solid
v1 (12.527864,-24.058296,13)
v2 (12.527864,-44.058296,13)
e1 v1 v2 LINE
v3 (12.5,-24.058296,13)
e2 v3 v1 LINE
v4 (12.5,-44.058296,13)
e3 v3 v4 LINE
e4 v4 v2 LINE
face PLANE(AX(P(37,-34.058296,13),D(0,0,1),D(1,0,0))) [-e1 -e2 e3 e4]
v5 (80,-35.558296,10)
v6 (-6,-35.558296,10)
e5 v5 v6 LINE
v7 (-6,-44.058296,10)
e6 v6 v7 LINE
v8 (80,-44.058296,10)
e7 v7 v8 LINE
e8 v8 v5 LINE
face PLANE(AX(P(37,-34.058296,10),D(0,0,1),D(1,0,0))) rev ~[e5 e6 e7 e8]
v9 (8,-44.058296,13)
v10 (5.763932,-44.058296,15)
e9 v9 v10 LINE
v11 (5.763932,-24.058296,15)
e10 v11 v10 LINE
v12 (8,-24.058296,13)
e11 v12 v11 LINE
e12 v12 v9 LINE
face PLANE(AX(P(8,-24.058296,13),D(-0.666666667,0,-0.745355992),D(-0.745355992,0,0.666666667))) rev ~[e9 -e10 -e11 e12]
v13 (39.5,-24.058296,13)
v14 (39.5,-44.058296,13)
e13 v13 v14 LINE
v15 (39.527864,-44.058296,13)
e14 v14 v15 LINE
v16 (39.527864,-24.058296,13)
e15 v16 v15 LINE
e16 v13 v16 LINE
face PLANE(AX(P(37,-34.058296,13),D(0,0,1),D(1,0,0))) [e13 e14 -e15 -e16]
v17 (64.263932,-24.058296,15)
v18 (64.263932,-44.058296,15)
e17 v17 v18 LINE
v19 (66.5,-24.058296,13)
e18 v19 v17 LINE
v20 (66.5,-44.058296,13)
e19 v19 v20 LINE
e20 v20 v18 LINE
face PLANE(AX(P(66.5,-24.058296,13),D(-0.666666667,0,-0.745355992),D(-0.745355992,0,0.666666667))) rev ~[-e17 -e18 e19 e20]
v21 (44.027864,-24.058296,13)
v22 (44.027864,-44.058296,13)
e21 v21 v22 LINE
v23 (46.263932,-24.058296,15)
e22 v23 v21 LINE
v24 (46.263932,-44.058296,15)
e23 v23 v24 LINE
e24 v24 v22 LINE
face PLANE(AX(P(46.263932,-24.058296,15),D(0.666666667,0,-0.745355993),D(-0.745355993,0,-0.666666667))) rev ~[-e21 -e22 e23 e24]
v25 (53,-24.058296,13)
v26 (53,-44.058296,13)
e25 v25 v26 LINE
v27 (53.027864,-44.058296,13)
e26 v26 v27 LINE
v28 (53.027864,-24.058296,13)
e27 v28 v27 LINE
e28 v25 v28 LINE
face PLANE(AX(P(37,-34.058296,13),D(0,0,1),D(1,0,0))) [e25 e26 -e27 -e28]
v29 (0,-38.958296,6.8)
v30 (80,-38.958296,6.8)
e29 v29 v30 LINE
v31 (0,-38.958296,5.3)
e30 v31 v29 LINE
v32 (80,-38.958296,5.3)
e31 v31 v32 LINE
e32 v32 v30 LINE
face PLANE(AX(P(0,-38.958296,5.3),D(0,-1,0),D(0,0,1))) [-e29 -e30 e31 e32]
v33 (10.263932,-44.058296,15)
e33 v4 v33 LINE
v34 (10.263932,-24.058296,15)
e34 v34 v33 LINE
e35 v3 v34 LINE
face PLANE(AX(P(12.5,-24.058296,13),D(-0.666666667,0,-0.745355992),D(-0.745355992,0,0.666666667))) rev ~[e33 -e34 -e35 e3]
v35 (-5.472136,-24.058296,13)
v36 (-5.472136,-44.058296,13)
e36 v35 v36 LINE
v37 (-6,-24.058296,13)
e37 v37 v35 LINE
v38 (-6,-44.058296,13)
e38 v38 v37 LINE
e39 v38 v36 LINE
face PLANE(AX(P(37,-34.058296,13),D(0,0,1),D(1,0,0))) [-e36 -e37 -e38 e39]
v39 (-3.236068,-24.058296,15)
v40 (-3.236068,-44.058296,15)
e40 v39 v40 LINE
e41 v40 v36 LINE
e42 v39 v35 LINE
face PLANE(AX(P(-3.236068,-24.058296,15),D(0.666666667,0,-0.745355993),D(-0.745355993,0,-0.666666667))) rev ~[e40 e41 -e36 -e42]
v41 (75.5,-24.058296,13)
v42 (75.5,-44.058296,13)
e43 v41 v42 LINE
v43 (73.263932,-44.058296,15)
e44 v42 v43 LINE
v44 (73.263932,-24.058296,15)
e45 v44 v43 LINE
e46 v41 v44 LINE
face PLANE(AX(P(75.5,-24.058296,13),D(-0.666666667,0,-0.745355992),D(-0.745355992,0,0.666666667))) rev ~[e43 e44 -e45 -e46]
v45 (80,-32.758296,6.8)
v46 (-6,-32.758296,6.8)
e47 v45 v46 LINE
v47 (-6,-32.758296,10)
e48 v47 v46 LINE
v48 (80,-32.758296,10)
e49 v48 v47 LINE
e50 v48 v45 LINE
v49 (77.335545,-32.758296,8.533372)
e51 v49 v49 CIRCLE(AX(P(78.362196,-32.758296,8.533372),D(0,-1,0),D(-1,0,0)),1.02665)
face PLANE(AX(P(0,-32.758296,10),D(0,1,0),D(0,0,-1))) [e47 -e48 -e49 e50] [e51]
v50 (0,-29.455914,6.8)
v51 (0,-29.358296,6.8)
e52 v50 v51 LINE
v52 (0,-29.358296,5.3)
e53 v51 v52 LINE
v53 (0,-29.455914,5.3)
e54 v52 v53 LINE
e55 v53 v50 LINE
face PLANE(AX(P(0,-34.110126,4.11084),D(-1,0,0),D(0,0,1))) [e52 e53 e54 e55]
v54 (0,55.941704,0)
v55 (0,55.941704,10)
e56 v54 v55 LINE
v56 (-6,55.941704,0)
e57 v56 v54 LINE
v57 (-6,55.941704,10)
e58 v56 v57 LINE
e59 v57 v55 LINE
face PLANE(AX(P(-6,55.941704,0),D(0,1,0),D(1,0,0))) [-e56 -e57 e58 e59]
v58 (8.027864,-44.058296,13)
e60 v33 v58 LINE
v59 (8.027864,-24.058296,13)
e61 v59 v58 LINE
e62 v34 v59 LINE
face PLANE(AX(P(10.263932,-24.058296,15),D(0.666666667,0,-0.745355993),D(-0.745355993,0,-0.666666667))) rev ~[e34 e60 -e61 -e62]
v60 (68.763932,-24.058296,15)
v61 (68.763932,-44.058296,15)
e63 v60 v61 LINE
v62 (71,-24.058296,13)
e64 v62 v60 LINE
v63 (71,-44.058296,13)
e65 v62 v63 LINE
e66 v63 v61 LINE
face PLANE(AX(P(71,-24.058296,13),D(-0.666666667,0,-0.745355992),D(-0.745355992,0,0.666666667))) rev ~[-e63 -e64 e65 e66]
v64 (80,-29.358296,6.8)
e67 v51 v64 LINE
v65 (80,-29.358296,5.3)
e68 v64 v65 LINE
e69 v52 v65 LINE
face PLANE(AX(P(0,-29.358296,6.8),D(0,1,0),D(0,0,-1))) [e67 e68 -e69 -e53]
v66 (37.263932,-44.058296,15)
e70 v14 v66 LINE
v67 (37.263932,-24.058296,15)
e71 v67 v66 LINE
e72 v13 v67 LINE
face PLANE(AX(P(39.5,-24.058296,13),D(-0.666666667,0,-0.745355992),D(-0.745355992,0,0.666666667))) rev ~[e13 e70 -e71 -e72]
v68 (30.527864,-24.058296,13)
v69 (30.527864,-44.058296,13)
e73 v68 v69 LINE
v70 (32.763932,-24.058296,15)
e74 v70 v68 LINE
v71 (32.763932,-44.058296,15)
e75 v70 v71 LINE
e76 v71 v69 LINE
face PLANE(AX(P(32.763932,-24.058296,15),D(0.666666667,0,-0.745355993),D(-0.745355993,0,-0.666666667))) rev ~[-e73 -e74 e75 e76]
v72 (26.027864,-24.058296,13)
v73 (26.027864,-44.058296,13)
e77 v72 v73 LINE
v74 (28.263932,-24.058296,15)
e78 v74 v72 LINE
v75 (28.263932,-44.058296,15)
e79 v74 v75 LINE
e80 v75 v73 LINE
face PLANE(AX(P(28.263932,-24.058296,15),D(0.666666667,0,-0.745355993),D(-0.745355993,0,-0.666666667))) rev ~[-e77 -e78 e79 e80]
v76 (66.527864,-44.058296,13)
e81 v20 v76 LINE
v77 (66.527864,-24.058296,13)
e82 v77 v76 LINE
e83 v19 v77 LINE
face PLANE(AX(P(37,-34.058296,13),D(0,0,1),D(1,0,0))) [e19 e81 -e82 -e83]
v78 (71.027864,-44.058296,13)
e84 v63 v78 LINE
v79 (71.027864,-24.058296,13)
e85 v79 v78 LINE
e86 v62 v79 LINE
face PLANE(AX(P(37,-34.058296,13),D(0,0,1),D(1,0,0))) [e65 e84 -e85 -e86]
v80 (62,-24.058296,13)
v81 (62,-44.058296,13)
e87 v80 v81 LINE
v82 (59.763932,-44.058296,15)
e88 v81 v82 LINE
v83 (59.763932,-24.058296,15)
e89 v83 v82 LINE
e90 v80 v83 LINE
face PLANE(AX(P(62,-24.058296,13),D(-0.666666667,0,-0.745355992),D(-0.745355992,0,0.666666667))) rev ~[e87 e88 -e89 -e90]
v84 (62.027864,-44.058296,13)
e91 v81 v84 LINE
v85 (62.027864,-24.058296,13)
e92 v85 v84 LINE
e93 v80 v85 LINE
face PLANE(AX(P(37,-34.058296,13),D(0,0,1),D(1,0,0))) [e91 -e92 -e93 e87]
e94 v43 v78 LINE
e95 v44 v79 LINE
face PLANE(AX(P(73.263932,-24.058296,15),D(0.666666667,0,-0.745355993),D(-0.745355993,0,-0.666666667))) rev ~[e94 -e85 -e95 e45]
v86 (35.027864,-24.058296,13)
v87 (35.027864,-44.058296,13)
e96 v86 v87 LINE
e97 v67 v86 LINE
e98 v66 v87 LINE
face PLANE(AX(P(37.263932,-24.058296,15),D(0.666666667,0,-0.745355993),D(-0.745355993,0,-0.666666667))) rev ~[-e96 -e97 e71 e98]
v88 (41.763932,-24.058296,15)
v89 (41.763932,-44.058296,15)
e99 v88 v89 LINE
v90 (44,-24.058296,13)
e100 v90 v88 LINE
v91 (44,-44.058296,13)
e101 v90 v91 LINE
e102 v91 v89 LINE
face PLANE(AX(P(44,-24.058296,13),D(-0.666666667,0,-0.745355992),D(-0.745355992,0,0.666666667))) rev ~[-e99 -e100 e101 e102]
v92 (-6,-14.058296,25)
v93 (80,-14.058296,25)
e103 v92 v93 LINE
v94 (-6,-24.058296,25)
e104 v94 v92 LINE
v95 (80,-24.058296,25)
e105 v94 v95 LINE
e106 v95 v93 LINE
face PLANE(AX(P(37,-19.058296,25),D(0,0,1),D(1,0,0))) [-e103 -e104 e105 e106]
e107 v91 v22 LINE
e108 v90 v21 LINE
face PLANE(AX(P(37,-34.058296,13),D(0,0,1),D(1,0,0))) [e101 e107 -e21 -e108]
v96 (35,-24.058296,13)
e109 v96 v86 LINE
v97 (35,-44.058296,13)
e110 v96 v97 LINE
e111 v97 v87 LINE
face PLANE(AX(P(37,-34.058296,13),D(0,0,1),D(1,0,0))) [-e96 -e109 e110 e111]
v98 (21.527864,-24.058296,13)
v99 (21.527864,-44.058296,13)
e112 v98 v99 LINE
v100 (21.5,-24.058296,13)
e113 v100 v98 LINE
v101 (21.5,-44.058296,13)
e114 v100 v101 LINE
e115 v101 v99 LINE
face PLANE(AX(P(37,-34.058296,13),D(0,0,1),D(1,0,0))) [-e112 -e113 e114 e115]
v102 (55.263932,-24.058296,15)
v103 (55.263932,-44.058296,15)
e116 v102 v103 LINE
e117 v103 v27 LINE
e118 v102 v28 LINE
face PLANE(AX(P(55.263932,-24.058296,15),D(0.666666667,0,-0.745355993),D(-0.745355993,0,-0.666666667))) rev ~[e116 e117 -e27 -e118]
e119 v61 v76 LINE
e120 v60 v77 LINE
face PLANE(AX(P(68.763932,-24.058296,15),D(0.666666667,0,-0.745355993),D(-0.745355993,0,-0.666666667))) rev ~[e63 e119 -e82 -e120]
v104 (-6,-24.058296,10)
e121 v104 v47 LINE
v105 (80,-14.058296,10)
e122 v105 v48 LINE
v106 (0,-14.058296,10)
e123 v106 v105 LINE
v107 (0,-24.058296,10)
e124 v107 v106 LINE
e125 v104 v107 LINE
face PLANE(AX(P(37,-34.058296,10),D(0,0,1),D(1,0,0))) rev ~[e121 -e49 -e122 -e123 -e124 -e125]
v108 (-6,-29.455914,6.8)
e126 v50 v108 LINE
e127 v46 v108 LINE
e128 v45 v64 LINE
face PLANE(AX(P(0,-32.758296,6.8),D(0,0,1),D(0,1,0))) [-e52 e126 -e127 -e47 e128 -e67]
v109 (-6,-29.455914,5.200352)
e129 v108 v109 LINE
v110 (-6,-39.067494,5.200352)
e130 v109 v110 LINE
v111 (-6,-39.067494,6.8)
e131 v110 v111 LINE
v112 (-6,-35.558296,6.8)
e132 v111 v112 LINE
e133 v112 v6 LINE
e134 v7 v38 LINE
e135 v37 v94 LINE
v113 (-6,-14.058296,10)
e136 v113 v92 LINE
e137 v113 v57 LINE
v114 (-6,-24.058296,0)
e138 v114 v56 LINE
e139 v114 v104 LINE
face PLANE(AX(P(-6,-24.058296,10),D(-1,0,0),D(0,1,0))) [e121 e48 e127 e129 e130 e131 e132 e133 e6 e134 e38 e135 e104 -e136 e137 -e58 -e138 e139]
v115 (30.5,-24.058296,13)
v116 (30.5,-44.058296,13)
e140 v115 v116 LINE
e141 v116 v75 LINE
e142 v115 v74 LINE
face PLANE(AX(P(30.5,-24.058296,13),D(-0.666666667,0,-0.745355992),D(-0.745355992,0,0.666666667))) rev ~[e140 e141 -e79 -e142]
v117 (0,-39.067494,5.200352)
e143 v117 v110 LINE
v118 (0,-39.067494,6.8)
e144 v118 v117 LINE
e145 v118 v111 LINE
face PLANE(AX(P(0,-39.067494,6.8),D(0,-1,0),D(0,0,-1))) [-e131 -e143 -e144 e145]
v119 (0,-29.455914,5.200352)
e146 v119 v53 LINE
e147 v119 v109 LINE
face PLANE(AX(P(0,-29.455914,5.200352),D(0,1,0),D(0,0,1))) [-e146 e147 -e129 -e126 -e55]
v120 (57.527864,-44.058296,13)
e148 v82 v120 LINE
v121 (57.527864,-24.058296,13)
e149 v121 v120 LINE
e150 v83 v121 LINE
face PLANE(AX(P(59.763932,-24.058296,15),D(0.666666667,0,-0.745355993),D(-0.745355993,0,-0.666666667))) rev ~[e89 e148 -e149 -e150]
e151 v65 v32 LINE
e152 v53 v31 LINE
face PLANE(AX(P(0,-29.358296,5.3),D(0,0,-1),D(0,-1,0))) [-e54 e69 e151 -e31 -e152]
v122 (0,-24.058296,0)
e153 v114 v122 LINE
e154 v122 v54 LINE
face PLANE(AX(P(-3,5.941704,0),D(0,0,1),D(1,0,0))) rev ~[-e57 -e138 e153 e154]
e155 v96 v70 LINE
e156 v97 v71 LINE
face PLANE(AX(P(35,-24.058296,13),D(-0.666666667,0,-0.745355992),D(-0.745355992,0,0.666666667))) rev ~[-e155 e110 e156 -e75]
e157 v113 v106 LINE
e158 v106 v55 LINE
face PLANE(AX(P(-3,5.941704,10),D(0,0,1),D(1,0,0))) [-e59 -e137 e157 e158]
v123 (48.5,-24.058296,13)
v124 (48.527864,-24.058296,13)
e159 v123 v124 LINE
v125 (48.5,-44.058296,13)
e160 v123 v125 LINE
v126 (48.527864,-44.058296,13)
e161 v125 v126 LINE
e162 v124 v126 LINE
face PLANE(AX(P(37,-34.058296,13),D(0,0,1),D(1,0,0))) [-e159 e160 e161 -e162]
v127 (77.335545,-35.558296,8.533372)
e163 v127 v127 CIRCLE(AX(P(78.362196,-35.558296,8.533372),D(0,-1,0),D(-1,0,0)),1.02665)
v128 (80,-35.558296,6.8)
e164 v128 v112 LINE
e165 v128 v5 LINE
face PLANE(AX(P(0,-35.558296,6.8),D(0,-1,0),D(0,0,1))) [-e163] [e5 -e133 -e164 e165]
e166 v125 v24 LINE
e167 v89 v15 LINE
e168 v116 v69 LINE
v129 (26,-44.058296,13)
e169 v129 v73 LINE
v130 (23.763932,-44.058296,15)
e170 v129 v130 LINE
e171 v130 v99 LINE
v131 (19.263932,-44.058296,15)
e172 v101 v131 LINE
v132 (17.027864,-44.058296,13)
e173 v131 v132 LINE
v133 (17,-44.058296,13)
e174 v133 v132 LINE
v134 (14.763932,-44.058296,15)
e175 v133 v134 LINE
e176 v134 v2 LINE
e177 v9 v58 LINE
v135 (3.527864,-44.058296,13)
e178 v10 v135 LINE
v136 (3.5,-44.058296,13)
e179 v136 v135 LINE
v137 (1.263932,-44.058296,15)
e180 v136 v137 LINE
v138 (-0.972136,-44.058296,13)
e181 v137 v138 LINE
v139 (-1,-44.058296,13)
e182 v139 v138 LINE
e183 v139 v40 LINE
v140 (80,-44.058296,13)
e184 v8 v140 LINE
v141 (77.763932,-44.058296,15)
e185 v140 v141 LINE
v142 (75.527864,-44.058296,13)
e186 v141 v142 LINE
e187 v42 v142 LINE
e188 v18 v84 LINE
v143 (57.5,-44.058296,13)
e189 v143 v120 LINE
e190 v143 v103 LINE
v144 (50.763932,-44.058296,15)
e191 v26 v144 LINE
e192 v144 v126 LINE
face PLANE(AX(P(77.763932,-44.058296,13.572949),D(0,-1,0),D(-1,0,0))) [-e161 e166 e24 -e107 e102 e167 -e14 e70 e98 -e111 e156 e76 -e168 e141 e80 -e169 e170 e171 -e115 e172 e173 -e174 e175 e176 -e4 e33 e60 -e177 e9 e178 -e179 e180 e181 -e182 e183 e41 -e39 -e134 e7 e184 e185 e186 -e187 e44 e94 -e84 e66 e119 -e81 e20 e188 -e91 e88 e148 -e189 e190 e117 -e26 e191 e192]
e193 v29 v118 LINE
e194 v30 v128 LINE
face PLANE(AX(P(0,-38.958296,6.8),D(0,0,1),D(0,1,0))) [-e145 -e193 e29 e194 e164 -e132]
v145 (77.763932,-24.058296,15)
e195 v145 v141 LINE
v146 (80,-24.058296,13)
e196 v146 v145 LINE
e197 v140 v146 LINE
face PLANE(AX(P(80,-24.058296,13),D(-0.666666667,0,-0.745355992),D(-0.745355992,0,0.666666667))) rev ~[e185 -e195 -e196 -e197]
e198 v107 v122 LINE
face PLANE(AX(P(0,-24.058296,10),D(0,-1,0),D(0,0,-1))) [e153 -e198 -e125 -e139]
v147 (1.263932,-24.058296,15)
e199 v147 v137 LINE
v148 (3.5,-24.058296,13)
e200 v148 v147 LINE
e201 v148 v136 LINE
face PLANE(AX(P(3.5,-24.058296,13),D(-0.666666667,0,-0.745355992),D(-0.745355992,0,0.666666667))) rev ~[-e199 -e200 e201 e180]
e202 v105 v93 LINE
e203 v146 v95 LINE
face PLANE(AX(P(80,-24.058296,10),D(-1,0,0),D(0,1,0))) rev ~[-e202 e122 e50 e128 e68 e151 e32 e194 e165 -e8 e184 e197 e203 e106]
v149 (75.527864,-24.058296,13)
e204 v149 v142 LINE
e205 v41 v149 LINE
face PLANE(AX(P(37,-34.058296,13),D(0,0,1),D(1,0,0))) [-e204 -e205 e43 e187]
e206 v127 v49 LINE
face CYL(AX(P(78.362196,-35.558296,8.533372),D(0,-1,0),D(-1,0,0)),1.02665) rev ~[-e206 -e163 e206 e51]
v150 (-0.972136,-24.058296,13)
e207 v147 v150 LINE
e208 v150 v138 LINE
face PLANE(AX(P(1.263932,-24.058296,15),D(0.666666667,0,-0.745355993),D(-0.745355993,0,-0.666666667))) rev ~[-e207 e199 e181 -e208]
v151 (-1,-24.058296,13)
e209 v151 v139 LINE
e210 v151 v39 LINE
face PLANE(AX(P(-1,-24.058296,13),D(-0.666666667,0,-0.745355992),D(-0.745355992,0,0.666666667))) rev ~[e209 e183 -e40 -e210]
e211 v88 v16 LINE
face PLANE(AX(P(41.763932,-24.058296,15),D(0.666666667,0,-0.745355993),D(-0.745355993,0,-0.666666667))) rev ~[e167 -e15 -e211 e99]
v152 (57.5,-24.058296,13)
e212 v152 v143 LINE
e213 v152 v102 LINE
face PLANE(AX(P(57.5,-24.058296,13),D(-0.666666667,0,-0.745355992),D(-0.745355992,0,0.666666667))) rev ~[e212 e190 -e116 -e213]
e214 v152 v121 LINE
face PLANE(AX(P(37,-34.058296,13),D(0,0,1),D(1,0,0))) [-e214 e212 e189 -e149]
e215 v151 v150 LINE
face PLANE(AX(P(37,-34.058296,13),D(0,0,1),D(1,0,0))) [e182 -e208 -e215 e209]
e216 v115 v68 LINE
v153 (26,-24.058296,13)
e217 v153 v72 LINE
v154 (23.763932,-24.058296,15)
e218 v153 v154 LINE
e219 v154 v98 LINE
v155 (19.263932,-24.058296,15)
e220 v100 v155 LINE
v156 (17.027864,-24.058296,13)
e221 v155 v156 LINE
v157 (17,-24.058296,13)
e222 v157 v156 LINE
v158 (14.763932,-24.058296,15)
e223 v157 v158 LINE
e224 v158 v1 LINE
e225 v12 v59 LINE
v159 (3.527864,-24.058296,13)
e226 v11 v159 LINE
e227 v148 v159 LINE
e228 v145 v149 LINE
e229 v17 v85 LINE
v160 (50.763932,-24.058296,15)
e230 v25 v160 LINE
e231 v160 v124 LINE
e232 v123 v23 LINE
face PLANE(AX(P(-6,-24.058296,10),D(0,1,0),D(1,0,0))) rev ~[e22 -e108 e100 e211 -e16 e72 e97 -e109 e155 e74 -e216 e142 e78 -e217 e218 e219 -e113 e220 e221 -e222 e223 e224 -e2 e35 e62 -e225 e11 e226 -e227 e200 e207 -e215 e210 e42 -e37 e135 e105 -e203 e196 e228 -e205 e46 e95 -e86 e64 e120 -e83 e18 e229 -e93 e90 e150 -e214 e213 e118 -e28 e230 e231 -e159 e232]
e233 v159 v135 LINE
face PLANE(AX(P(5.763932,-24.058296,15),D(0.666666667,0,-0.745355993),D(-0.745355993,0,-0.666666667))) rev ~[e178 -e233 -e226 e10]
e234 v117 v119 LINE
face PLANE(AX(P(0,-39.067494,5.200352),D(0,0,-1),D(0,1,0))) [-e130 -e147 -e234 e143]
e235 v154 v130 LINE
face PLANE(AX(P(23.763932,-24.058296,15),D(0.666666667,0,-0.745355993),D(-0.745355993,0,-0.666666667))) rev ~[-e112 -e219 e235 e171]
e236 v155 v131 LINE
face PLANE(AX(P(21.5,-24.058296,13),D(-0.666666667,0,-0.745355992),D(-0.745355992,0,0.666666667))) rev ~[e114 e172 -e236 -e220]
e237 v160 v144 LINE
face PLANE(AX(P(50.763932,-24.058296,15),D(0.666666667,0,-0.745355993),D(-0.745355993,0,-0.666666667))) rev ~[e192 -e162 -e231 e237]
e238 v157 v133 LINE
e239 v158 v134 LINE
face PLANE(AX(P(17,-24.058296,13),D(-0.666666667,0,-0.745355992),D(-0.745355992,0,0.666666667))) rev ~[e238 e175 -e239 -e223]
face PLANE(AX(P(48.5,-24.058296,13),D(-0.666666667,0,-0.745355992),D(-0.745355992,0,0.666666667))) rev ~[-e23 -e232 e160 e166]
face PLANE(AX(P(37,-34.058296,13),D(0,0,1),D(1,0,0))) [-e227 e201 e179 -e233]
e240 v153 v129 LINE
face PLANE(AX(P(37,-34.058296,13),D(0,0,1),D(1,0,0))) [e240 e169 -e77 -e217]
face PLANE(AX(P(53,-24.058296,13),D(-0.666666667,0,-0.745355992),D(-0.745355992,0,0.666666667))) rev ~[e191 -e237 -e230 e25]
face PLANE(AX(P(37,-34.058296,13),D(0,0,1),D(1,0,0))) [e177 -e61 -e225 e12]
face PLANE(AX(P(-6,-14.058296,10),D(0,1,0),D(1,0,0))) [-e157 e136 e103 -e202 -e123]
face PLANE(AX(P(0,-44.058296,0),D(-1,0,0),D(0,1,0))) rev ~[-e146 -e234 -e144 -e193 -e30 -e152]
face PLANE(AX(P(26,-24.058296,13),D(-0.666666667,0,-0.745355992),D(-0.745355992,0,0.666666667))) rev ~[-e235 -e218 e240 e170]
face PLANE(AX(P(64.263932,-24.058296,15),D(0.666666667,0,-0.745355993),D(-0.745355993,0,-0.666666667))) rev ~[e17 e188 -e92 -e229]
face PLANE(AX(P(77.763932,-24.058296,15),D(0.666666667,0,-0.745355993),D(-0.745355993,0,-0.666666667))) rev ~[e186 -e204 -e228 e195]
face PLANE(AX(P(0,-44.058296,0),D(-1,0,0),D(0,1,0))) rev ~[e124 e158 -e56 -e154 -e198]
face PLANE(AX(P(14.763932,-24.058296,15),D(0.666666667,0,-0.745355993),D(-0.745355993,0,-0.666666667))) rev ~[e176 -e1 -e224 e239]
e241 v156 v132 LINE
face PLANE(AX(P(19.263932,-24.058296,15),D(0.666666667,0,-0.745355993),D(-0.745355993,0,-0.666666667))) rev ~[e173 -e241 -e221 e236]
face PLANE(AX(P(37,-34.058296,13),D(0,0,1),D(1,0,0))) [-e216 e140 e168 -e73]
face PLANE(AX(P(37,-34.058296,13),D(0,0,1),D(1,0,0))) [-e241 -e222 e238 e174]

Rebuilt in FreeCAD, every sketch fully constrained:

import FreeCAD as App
import Part
import Sketcher
from FreeCAD import Vector

doc = App.newDocument("Part")
body = doc.addObject("PartDesign::Body", "Body")
body.AllowCompound = True

sketch1 = body.newObject("Sketcher::SketchObject", "Sketch")
sketch1.AttachmentSupport = (doc.getObject("XY_Plane"), [""])
sketch1.MapMode = "FlatFace"
sketch1.addGeometry(Part.LineSegment(Vector(-6, 56, 0), Vector(-6, -44, 0)), False)
sketch1.addGeometry(Part.LineSegment(Vector(-6, -44, 0), Vector(0, -44, 0)), False)
sketch1.addGeometry(Part.LineSegment(Vector(0, -44, 0), Vector(0, 56, 0)), False)
sketch1.addGeometry(Part.LineSegment(Vector(0, 56, 0), Vector(-6, 56, 0)), False)
sketch1.addConstraint(Sketcher.Constraint("Coincident", 0, 2, 1, 1))
sketch1.addConstraint(Sketcher.Constraint("Coincident", 1, 2, 2, 1))
sketch1.addConstraint(Sketcher.Constraint("Coincident", 2, 2, 3, 1))
sketch1.addConstraint(Sketcher.Constraint("Coincident", 3, 2, 0, 1))
sketch1.addConstraint(Sketcher.Constraint("Vertical", 0))
sketch1.addConstraint(Sketcher.Constraint("Horizontal", 1))
sketch1.addConstraint(Sketcher.Constraint("Vertical", 2))
sketch1.addConstraint(Sketcher.Constraint("Horizontal", 3))
sketch1.addConstraint(Sketcher.Constraint("PointOnObject", 1, 2, -2))
sketch1.addConstraint(Sketcher.Constraint("DistanceX", 1, 1, 1, 2, 6.0))
sketch1.addConstraint(Sketcher.Constraint("DistanceY", 0, 2, 0, 1, 100.0))
sketch1.addConstraint(Sketcher.Constraint("DistanceY", 0, 2, -1, 1, 44.058296))
pad1 = body.newObject("PartDesign::Pad", "Pad")
pad1.Profile = sketch1
pad1.Length = 10

sketch2 = body.newObject("Sketcher::SketchObject", "Sketch001")
sketch2.AttachmentSupport = (doc.getObject("YZ_Plane"), [""])
sketch2.MapMode = "FlatFace"
sketch2.addGeometry(Part.LineSegment(Vector(-32.8, 6.8, 0), Vector(-32.8, 10, 0)), False)
sketch2.addGeometry(Part.LineSegment(Vector(-32.8, 10, 0), Vector(-35.6, 10, 0)), False)
sketch2.addGeometry(Part.LineSegment(Vector(-35.6, 10, 0), Vector(-35.6, 6.8, 0)), False)
sketch2.addGeometry(Part.LineSegment(Vector(-35.6, 6.8, 0), Vector(-39, 6.8, 0)), False)
sketch2.addGeometry(Part.LineSegment(Vector(-39, 6.8, 0), Vector(-39, 5.3, 0)), False)
sketch2.addGeometry(Part.LineSegment(Vector(-39, 5.3, 0), Vector(-29.4, 5.3, 0)), False)
sketch2.addGeometry(Part.LineSegment(Vector(-29.4, 5.3, 0), Vector(-29.4, 6.8, 0)), False)
sketch2.addGeometry(Part.LineSegment(Vector(-29.4, 6.8, 0), Vector(-32.8, 6.8, 0)), False)
sketch2.addConstraint(Sketcher.Constraint("Coincident", 0, 2, 1, 1))
sketch2.addConstraint(Sketcher.Constraint("Coincident", 1, 2, 2, 1))
sketch2.addConstraint(Sketcher.Constraint("Coincident", 2, 2, 3, 1))
sketch2.addConstraint(Sketcher.Constraint("Coincident", 3, 2, 4, 1))
sketch2.addConstraint(Sketcher.Constraint("Coincident", 4, 2, 5, 1))
sketch2.addConstraint(Sketcher.Constraint("Coincident", 5, 2, 6, 1))
sketch2.addConstraint(Sketcher.Constraint("Coincident", 6, 2, 7, 1))
sketch2.addConstraint(Sketcher.Constraint("Coincident", 7, 2, 0, 1))
sketch2.addConstraint(Sketcher.Constraint("Vertical", 0))
sketch2.addConstraint(Sketcher.Constraint("Horizontal", 1))
sketch2.addConstraint(Sketcher.Constraint("Vertical", 2))
sketch2.addConstraint(Sketcher.Constraint("Horizontal", 3))
sketch2.addConstraint(Sketcher.Constraint("Vertical", 4))
sketch2.addConstraint(Sketcher.Constraint("Horizontal", 5))
sketch2.addConstraint(Sketcher.Constraint("Vertical", 6))
sketch2.addConstraint(Sketcher.Constraint("Horizontal", 7))
sketch2.addConstraint(Sketcher.Constraint("Horizontal", 3, 2, 6, 2))
sketch2.addConstraint(Sketcher.Constraint("Equal", 3, 7))
sketch2.addConstraint(Sketcher.Constraint("DistanceX", 1, 2, 1, 1, 2.8))
sketch2.addConstraint(Sketcher.Constraint("DistanceX", 3, 2, 3, 1, 3.4))
sketch2.addConstraint(Sketcher.Constraint("DistanceY", 0, 1, 0, 2, 3.2))
sketch2.addConstraint(Sketcher.Constraint("DistanceY", 4, 2, 4, 1, 1.5))
sketch2.addConstraint(Sketcher.Constraint("DistanceY", -1, 1, 0, 2, 10.0))
sketch2.addConstraint(Sketcher.Constraint("DistanceX", 0, 2, -1, 1, 32.758296))
pad2 = body.newObject("PartDesign::Pad", "Pad001")
pad2.Profile = sketch2
pad2.Length = 80

sketch3 = body.newObject("Sketcher::SketchObject", "Sketch002")
sketch3.AttachmentSupport = (doc.getObject("XY_Plane"), [""])
sketch3.MapMode = "FlatFace"
sketch3.AttachmentOffset = App.Placement(Vector(0, 0, 10), App.Rotation())
sketch3.addGeometry(Part.LineSegment(Vector(-6, -24, 0), Vector(-6, -44, 0)), False)
sketch3.addGeometry(Part.LineSegment(Vector(-6, -44, 0), Vector(80, -44, 0)), False)
sketch3.addGeometry(Part.LineSegment(Vector(80, -44, 0), Vector(80, -24, 0)), False)
sketch3.addGeometry(Part.LineSegment(Vector(80, -24, 0), Vector(-6, -24, 0)), False)
sketch3.addConstraint(Sketcher.Constraint("Coincident", 0, 2, 1, 1))
sketch3.addConstraint(Sketcher.Constraint("Coincident", 1, 2, 2, 1))
sketch3.addConstraint(Sketcher.Constraint("Coincident", 2, 2, 3, 1))
sketch3.addConstraint(Sketcher.Constraint("Coincident", 3, 2, 0, 1))
sketch3.addConstraint(Sketcher.Constraint("Vertical", 0))
sketch3.addConstraint(Sketcher.Constraint("Horizontal", 1))
sketch3.addConstraint(Sketcher.Constraint("Vertical", 2))
sketch3.addConstraint(Sketcher.Constraint("Horizontal", 3))
sketch3.addConstraint(Sketcher.Constraint("DistanceX", 1, 1, 1, 2, 86.0))
sketch3.addConstraint(Sketcher.Constraint("DistanceY", 0, 2, 0, 1, 20.0))
sketch3.addConstraint(Sketcher.Constraint("DistanceX", 0, 2, -1, 1, 6.0))
sketch3.addConstraint(Sketcher.Constraint("DistanceY", 0, 2, -1, 1, 44.058296))
pad3 = body.newObject("PartDesign::Pad", "Pad002")
pad3.Profile = sketch3
pad3.Length = 3

sketch4 = body.newObject("Sketcher::SketchObject", "Sketch003")
sketch4.AttachmentSupport = (doc.getObject("XZ_Plane"), [""])
sketch4.MapMode = "FlatFace"
sketch4.AttachmentOffset = App.Placement(Vector(0, 0, 35.558296), App.Rotation())
sketch4.addGeometry(Part.Circle(Vector(78.4, 8.5, 0), Vector(0, 0, 1), 1), False)
sketch4.addConstraint(Sketcher.Constraint("Diameter", 0, 2.053301))
sketch4.addConstraint(Sketcher.Constraint("DistanceX", -1, 1, 0, 3, 78.362196))
sketch4.addConstraint(Sketcher.Constraint("DistanceY", -1, 1, 0, 3, 8.533372))
pocket1 = body.newObject("PartDesign::Pocket", "Pocket")
pocket1.Profile = sketch4
pocket1.Length = 10

sketch5 = body.newObject("Sketcher::SketchObject", "Sketch004")
sketch5.AttachmentSupport = (doc.getObject("XZ_Plane"), [""])
sketch5.MapMode = "FlatFace"
sketch5.AttachmentOffset = App.Placement(Vector(0, 0, 24.058296), App.Rotation())
sketch5.addGeometry(Part.LineSegment(Vector(77.8, 15, 0), Vector(80, 13, 0)), False)
sketch5.addGeometry(Part.LineSegment(Vector(80, 13, 0), Vector(75.5, 13, 0)), False)
sketch5.addGeometry(Part.LineSegment(Vector(75.5, 13, 0), Vector(77.8, 15, 0)), False)
sketch5.addGeometry(Part.LineSegment(Vector(73.3, 15, 0), Vector(75.5, 13, 0)), False)
sketch5.addGeometry(Part.LineSegment(Vector(75.5, 13, 0), Vector(71, 13, 0)), False)
sketch5.addGeometry(Part.LineSegment(Vector(71, 13, 0), Vector(73.3, 15, 0)), False)
sketch5.addGeometry(Part.LineSegment(Vector(68.8, 15, 0), Vector(71, 13, 0)), False)
sketch5.addGeometry(Part.LineSegment(Vector(71, 13, 0), Vector(66.5, 13, 0)), False)
sketch5.addGeometry(Part.LineSegment(Vector(66.5, 13, 0), Vector(68.8, 15, 0)), False)
sketch5.addGeometry(Part.LineSegment(Vector(64.3, 15, 0), Vector(66.5, 13, 0)), False)
sketch5.addGeometry(Part.LineSegment(Vector(66.5, 13, 0), Vector(62, 13, 0)), False)
sketch5.addGeometry(Part.LineSegment(Vector(62, 13, 0), Vector(64.3, 15, 0)), False)
sketch5.addGeometry(Part.LineSegment(Vector(59.8, 15, 0), Vector(62, 13, 0)), False)
sketch5.addGeometry(Part.LineSegment(Vector(62, 13, 0), Vector(57.5, 13, 0)), False)
sketch5.addGeometry(Part.LineSegment(Vector(57.5, 13, 0), Vector(59.8, 15, 0)), False)
sketch5.addGeometry(Part.LineSegment(Vector(55.3, 15, 0), Vector(57.5, 13, 0)), False)
sketch5.addGeometry(Part.LineSegment(Vector(57.5, 13, 0), Vector(53, 13, 0)), False)
sketch5.addGeometry(Part.LineSegment(Vector(53, 13, 0), Vector(55.3, 15, 0)), False)
sketch5.addGeometry(Part.LineSegment(Vector(50.8, 15, 0), Vector(53, 13, 0)), False)
sketch5.addGeometry(Part.LineSegment(Vector(53, 13, 0), Vector(48.5, 13, 0)), False)
sketch5.addGeometry(Part.LineSegment(Vector(48.5, 13, 0), Vector(50.8, 15, 0)), False)
sketch5.addGeometry(Part.LineSegment(Vector(46.3, 15, 0), Vector(48.5, 13, 0)), False)
sketch5.addGeometry(Part.LineSegment(Vector(48.5, 13, 0), Vector(44, 13, 0)), False)
sketch5.addGeometry(Part.LineSegment(Vector(44, 13, 0), Vector(46.3, 15, 0)), False)
sketch5.addGeometry(Part.LineSegment(Vector(41.8, 15, 0), Vector(44, 13, 0)), False)
sketch5.addGeometry(Part.LineSegment(Vector(44, 13, 0), Vector(39.5, 13, 0)), False)
sketch5.addGeometry(Part.LineSegment(Vector(39.5, 13, 0), Vector(41.8, 15, 0)), False)
sketch5.addGeometry(Part.LineSegment(Vector(37.3, 15, 0), Vector(39.5, 13, 0)), False)
sketch5.addGeometry(Part.LineSegment(Vector(39.5, 13, 0), Vector(35, 13, 0)), False)
sketch5.addGeometry(Part.LineSegment(Vector(35, 13, 0), Vector(37.3, 15, 0)), False)
sketch5.addGeometry(Part.LineSegment(Vector(32.8, 15, 0), Vector(35, 13, 0)), False)
sketch5.addGeometry(Part.LineSegment(Vector(35, 13, 0), Vector(30.5, 13, 0)), False)
sketch5.addGeometry(Part.LineSegment(Vector(30.5, 13, 0), Vector(32.8, 15, 0)), False)
sketch5.addGeometry(Part.LineSegment(Vector(28.3, 15, 0), Vector(30.5, 13, 0)), False)
sketch5.addGeometry(Part.LineSegment(Vector(30.5, 13, 0), Vector(26, 13, 0)), False)
sketch5.addGeometry(Part.LineSegment(Vector(26, 13, 0), Vector(28.3, 15, 0)), False)
sketch5.addGeometry(Part.LineSegment(Vector(23.8, 15, 0), Vector(26, 13, 0)), False)
sketch5.addGeometry(Part.LineSegment(Vector(26, 13, 0), Vector(21.5, 13, 0)), False)
sketch5.addGeometry(Part.LineSegment(Vector(21.5, 13, 0), Vector(23.8, 15, 0)), False)
sketch5.addGeometry(Part.LineSegment(Vector(19.3, 15, 0), Vector(21.5, 13, 0)), False)
sketch5.addGeometry(Part.LineSegment(Vector(21.5, 13, 0), Vector(17, 13, 0)), False)
sketch5.addGeometry(Part.LineSegment(Vector(17, 13, 0), Vector(19.3, 15, 0)), False)
sketch5.addGeometry(Part.LineSegment(Vector(14.8, 15, 0), Vector(17, 13, 0)), False)
sketch5.addGeometry(Part.LineSegment(Vector(17, 13, 0), Vector(12.5, 13, 0)), False)
sketch5.addGeometry(Part.LineSegment(Vector(12.5, 13, 0), Vector(14.8, 15, 0)), False)
sketch5.addGeometry(Part.LineSegment(Vector(10.3, 15, 0), Vector(12.5, 13, 0)), False)
sketch5.addGeometry(Part.LineSegment(Vector(12.5, 13, 0), Vector(8, 13, 0)), False)
sketch5.addGeometry(Part.LineSegment(Vector(8, 13, 0), Vector(10.3, 15, 0)), False)
sketch5.addGeometry(Part.LineSegment(Vector(5.8, 15, 0), Vector(8, 13, 0)), False)
sketch5.addGeometry(Part.LineSegment(Vector(8, 13, 0), Vector(3.5, 13, 0)), False)
sketch5.addGeometry(Part.LineSegment(Vector(3.5, 13, 0), Vector(5.8, 15, 0)), False)
sketch5.addGeometry(Part.LineSegment(Vector(1.3, 15, 0), Vector(3.5, 13, 0)), False)
sketch5.addGeometry(Part.LineSegment(Vector(3.5, 13, 0), Vector(-1, 13, 0)), False)
sketch5.addGeometry(Part.LineSegment(Vector(-1, 13, 0), Vector(1.3, 15, 0)), False)
sketch5.addGeometry(Part.LineSegment(Vector(-3.2, 15, 0), Vector(-1, 13, 0)), False)
sketch5.addGeometry(Part.LineSegment(Vector(-1, 13, 0), Vector(-5.5, 13, 0)), False)
sketch5.addGeometry(Part.LineSegment(Vector(-5.5, 13, 0), Vector(-3.2, 15, 0)), False)
sketch5.addConstraint(Sketcher.Constraint("Coincident", 0, 2, 1, 1))
sketch5.addConstraint(Sketcher.Constraint("Coincident", 1, 2, 2, 1))
sketch5.addConstraint(Sketcher.Constraint("Coincident", 2, 2, 0, 1))
sketch5.addConstraint(Sketcher.Constraint("Coincident", 3, 2, 4, 1))
sketch5.addConstraint(Sketcher.Constraint("Coincident", 4, 2, 5, 1))
sketch5.addConstraint(Sketcher.Constraint("Coincident", 5, 2, 3, 1))
sketch5.addConstraint(Sketcher.Constraint("Coincident", 6, 2, 7, 1))
sketch5.addConstraint(Sketcher.Constraint("Coincident", 7, 2, 8, 1))
sketch5.addConstraint(Sketcher.Constraint("Coincident", 8, 2, 6, 1))
sketch5.addConstraint(Sketcher.Constraint("Coincident", 9, 2, 10, 1))
sketch5.addConstraint(Sketcher.Constraint("Coincident", 10, 2, 11, 1))
sketch5.addConstraint(Sketcher.Constraint("Coincident", 11, 2, 9, 1))
sketch5.addConstraint(Sketcher.Constraint("Coincident", 12, 2, 13, 1))
sketch5.addConstraint(Sketcher.Constraint("Coincident", 13, 2, 14, 1))
sketch5.addConstraint(Sketcher.Constraint("Coincident", 14, 2, 12, 1))
sketch5.addConstraint(Sketcher.Constraint("Coincident", 15, 2, 16, 1))
sketch5.addConstraint(Sketcher.Constraint("Coincident", 16, 2, 17, 1))
sketch5.addConstraint(Sketcher.Constraint("Coincident", 17, 2, 15, 1))
sketch5.addConstraint(Sketcher.Constraint("Coincident", 18, 2, 19, 1))
sketch5.addConstraint(Sketcher.Constraint("Coincident", 19, 2, 20, 1))
sketch5.addConstraint(Sketcher.Constraint("Coincident", 20, 2, 18, 1))
sketch5.addConstraint(Sketcher.Constraint("Coincident", 21, 2, 22, 1))
sketch5.addConstraint(Sketcher.Constraint("Coincident", 22, 2, 23, 1))
sketch5.addConstraint(Sketcher.Constraint("Coincident", 23, 2, 21, 1))
sketch5.addConstraint(Sketcher.Constraint("Coincident", 24, 2, 25, 1))
sketch5.addConstraint(Sketcher.Constraint("Coincident", 25, 2, 26, 1))
sketch5.addConstraint(Sketcher.Constraint("Coincident", 26, 2, 24, 1))
sketch5.addConstraint(Sketcher.Constraint("Coincident", 27, 2, 28, 1))
sketch5.addConstraint(Sketcher.Constraint("Coincident", 28, 2, 29, 1))
sketch5.addConstraint(Sketcher.Constraint("Coincident", 29, 2, 27, 1))
sketch5.addConstraint(Sketcher.Constraint("Coincident", 30, 2, 31, 1))
sketch5.addConstraint(Sketcher.Constraint("Coincident", 31, 2, 32, 1))
sketch5.addConstraint(Sketcher.Constraint("Coincident", 32, 2, 30, 1))
sketch5.addConstraint(Sketcher.Constraint("Coincident", 33, 2, 34, 1))
sketch5.addConstraint(Sketcher.Constraint("Coincident", 34, 2, 35, 1))
sketch5.addConstraint(Sketcher.Constraint("Coincident", 35, 2, 33, 1))
sketch5.addConstraint(Sketcher.Constraint("Coincident", 36, 2, 37, 1))
sketch5.addConstraint(Sketcher.Constraint("Coincident", 37, 2, 38, 1))
sketch5.addConstraint(Sketcher.Constraint("Coincident", 38, 2, 36, 1))
sketch5.addConstraint(Sketcher.Constraint("Coincident", 39, 2, 40, 1))
sketch5.addConstraint(Sketcher.Constraint("Coincident", 40, 2, 41, 1))
sketch5.addConstraint(Sketcher.Constraint("Coincident", 41, 2, 39, 1))
sketch5.addConstraint(Sketcher.Constraint("Coincident", 42, 2, 43, 1))
sketch5.addConstraint(Sketcher.Constraint("Coincident", 43, 2, 44, 1))
sketch5.addConstraint(Sketcher.Constraint("Coincident", 44, 2, 42, 1))
sketch5.addConstraint(Sketcher.Constraint("Coincident", 45, 2, 46, 1))
sketch5.addConstraint(Sketcher.Constraint("Coincident", 46, 2, 47, 1))
sketch5.addConstraint(Sketcher.Constraint("Coincident", 47, 2, 45, 1))
sketch5.addConstraint(Sketcher.Constraint("Coincident", 48, 2, 49, 1))
sketch5.addConstraint(Sketcher.Constraint("Coincident", 49, 2, 50, 1))
sketch5.addConstraint(Sketcher.Constraint("Coincident", 50, 2, 48, 1))
sketch5.addConstraint(Sketcher.Constraint("Coincident", 51, 2, 52, 1))
sketch5.addConstraint(Sketcher.Constraint("Coincident", 52, 2, 53, 1))
sketch5.addConstraint(Sketcher.Constraint("Coincident", 53, 2, 51, 1))
sketch5.addConstraint(Sketcher.Constraint("Coincident", 54, 2, 55, 1))
sketch5.addConstraint(Sketcher.Constraint("Coincident", 55, 2, 56, 1))
sketch5.addConstraint(Sketcher.Constraint("Coincident", 56, 2, 54, 1))
sketch5.addConstraint(Sketcher.Constraint("Horizontal", 1))
sketch5.addConstraint(Sketcher.Constraint("Horizontal", 4))
sketch5.addConstraint(Sketcher.Constraint("Horizontal", 7))
sketch5.addConstraint(Sketcher.Constraint("Horizontal", 10))
sketch5.addConstraint(Sketcher.Constraint("Horizontal", 13))
sketch5.addConstraint(Sketcher.Constraint("Horizontal", 16))
sketch5.addConstraint(Sketcher.Constraint("Horizontal", 19))
sketch5.addConstraint(Sketcher.Constraint("Horizontal", 22))
sketch5.addConstraint(Sketcher.Constraint("Horizontal", 25))
sketch5.addConstraint(Sketcher.Constraint("Horizontal", 28))
sketch5.addConstraint(Sketcher.Constraint("Horizontal", 31))
sketch5.addConstraint(Sketcher.Constraint("Horizontal", 34))
sketch5.addConstraint(Sketcher.Constraint("Horizontal", 37))
sketch5.addConstraint(Sketcher.Constraint("Horizontal", 40))
sketch5.addConstraint(Sketcher.Constraint("Horizontal", 43))
sketch5.addConstraint(Sketcher.Constraint("Horizontal", 46))
sketch5.addConstraint(Sketcher.Constraint("Horizontal", 49))
sketch5.addConstraint(Sketcher.Constraint("Horizontal", 52))
sketch5.addConstraint(Sketcher.Constraint("Horizontal", 55))
sketch5.addConstraint(Sketcher.Constraint("Parallel", 0, 3))
sketch5.addConstraint(Sketcher.Constraint("Parallel", 2, 5))
sketch5.addConstraint(Sketcher.Constraint("Parallel", 3, 6))
sketch5.addConstraint(Sketcher.Constraint("Parallel", 5, 8))
sketch5.addConstraint(Sketcher.Constraint("Parallel", 6, 9))
sketch5.addConstraint(Sketcher.Constraint("Parallel", 8, 11))
sketch5.addConstraint(Sketcher.Constraint("Parallel", 9, 12))
sketch5.addConstraint(Sketcher.Constraint("Parallel", 11, 14))
sketch5.addConstraint(Sketcher.Constraint("Parallel", 12, 15))
sketch5.addConstraint(Sketcher.Constraint("Parallel", 14, 17))
sketch5.addConstraint(Sketcher.Constraint("Parallel", 15, 18))
sketch5.addConstraint(Sketcher.Constraint("Parallel", 17, 20))
sketch5.addConstraint(Sketcher.Constraint("Parallel", 18, 21))
sketch5.addConstraint(Sketcher.Constraint("Parallel", 20, 23))
sketch5.addConstraint(Sketcher.Constraint("Parallel", 21, 24))
sketch5.addConstraint(Sketcher.Constraint("Parallel", 23, 26))
sketch5.addConstraint(Sketcher.Constraint("Parallel", 24, 27))
sketch5.addConstraint(Sketcher.Constraint("Parallel", 26, 29))
sketch5.addConstraint(Sketcher.Constraint("Parallel", 27, 30))
sketch5.addConstraint(Sketcher.Constraint("Parallel", 29, 32))
sketch5.addConstraint(Sketcher.Constraint("Parallel", 30, 33))
sketch5.addConstraint(Sketcher.Constraint("Parallel", 32, 35))
sketch5.addConstraint(Sketcher.Constraint("Parallel", 33, 36))
sketch5.addConstraint(Sketcher.Constraint("Parallel", 35, 38))
sketch5.addConstraint(Sketcher.Constraint("Parallel", 36, 39))
sketch5.addConstraint(Sketcher.Constraint("Parallel", 38, 41))
sketch5.addConstraint(Sketcher.Constraint("Parallel", 39, 42))
sketch5.addConstraint(Sketcher.Constraint("Parallel", 41, 44))
sketch5.addConstraint(Sketcher.Constraint("Parallel", 42, 45))
sketch5.addConstraint(Sketcher.Constraint("Parallel", 44, 47))
sketch5.addConstraint(Sketcher.Constraint("Parallel", 45, 48))
sketch5.addConstraint(Sketcher.Constraint("Parallel", 47, 50))
sketch5.addConstraint(Sketcher.Constraint("Parallel", 48, 51))
sketch5.addConstraint(Sketcher.Constraint("Parallel", 50, 53))
sketch5.addConstraint(Sketcher.Constraint("Parallel", 51, 54))
sketch5.addConstraint(Sketcher.Constraint("Parallel", 53, 56))
sketch5.addConstraint(Sketcher.Constraint("Horizontal", 1, 2, 3, 2))
sketch5.addConstraint(Sketcher.Constraint("Horizontal", 2, 2, 5, 2))
sketch5.addConstraint(Sketcher.Constraint("Horizontal", 4, 2, 6, 2))
sketch5.addConstraint(Sketcher.Constraint("Horizontal", 5, 2, 8, 2))
sketch5.addConstraint(Sketcher.Constraint("Horizontal", 7, 2, 9, 2))
sketch5.addConstraint(Sketcher.Constraint("Horizontal", 8, 2, 11, 2))
sketch5.addConstraint(Sketcher.Constraint("Horizontal", 10, 2, 12, 2))
sketch5.addConstraint(Sketcher.Constraint("Horizontal", 11, 2, 14, 2))
sketch5.addConstraint(Sketcher.Constraint("Horizontal", 13, 2, 15, 2))
sketch5.addConstraint(Sketcher.Constraint("Horizontal", 14, 2, 17, 2))
sketch5.addConstraint(Sketcher.Constraint("Horizontal", 16, 2, 18, 2))
sketch5.addConstraint(Sketcher.Constraint("Horizontal", 17, 2, 20, 2))
sketch5.addConstraint(Sketcher.Constraint("Horizontal", 19, 2, 21, 2))
sketch5.addConstraint(Sketcher.Constraint("Horizontal", 20, 2, 23, 2))
sketch5.addConstraint(Sketcher.Constraint("Horizontal", 22, 2, 24, 2))
sketch5.addConstraint(Sketcher.Constraint("Horizontal", 23, 2, 26, 2))
sketch5.addConstraint(Sketcher.Constraint("Horizontal", 25, 2, 27, 2))
sketch5.addConstraint(Sketcher.Constraint("Horizontal", 26, 2, 29, 2))
sketch5.addConstraint(Sketcher.Constraint("Horizontal", 28, 2, 30, 2))
sketch5.addConstraint(Sketcher.Constraint("Horizontal", 29, 2, 32, 2))
sketch5.addConstraint(Sketcher.Constraint("Horizontal", 31, 2, 33, 2))
sketch5.addConstraint(Sketcher.Constraint("Horizontal", 32, 2, 35, 2))
sketch5.addConstraint(Sketcher.Constraint("Horizontal", 34, 2, 36, 2))
sketch5.addConstraint(Sketcher.Constraint("Horizontal", 35, 2, 38, 2))
sketch5.addConstraint(Sketcher.Constraint("Horizontal", 37, 2, 39, 2))
sketch5.addConstraint(Sketcher.Constraint("Horizontal", 38, 2, 41, 2))
sketch5.addConstraint(Sketcher.Constraint("Horizontal", 40, 2, 42, 2))
sketch5.addConstraint(Sketcher.Constraint("Horizontal", 41, 2, 44, 2))
sketch5.addConstraint(Sketcher.Constraint("Horizontal", 43, 2, 45, 2))
sketch5.addConstraint(Sketcher.Constraint("Horizontal", 44, 2, 47, 2))
sketch5.addConstraint(Sketcher.Constraint("Horizontal", 46, 2, 48, 2))
sketch5.addConstraint(Sketcher.Constraint("Horizontal", 47, 2, 50, 2))
sketch5.addConstraint(Sketcher.Constraint("Horizontal", 49, 2, 51, 2))
sketch5.addConstraint(Sketcher.Constraint("Horizontal", 50, 2, 53, 2))
sketch5.addConstraint(Sketcher.Constraint("Horizontal", 52, 2, 54, 2))
sketch5.addConstraint(Sketcher.Constraint("Horizontal", 53, 2, 56, 2))
sketch5.addConstraint(Sketcher.Constraint("Equal", 0, 2))
sketch5.addConstraint(Sketcher.Constraint("Distance", 0, 3.0))
sketch5.addConstraint(Sketcher.Constraint("DistanceX", -1, 1, 0, 2, 80.0))
sketch5.addConstraint(Sketcher.Constraint("DistanceY", -1, 1, 0, 2, 13.0))
sketch5.addConstraint(Sketcher.Constraint("DistanceY", -1, 1, 2, 2, 15.0))
sketch5.addConstraint(Sketcher.Constraint("DistanceX", -1, 1, 6, 2, 71.0))
sketch5.addConstraint(Sketcher.Constraint("DistanceX", -1, 1, 12, 2, 62.0))
sketch5.addConstraint(Sketcher.Constraint("DistanceX", -1, 1, 18, 2, 53.0))
sketch5.addConstraint(Sketcher.Constraint("DistanceX", -1, 1, 24, 2, 44.0))
sketch5.addConstraint(Sketcher.Constraint("DistanceX", -1, 1, 30, 2, 35.0))
sketch5.addConstraint(Sketcher.Constraint("DistanceX", -1, 1, 36, 2, 26.0))
sketch5.addConstraint(Sketcher.Constraint("DistanceX", -1, 1, 42, 2, 17.0))
sketch5.addConstraint(Sketcher.Constraint("DistanceX", -1, 1, 48, 2, 8.0))
sketch5.addConstraint(Sketcher.Constraint("DistanceX", 54, 2, -1, 1, 1.0))
sketch5.addConstraint(Sketcher.Constraint("DistanceX", 10, 2, 4, 2, 9.0))
sketch5.addConstraint(Sketcher.Constraint("DistanceX", 16, 2, 10, 2, 9.0))
sketch5.addConstraint(Sketcher.Constraint("DistanceX", 22, 2, 16, 2, 9.0))
sketch5.addConstraint(Sketcher.Constraint("DistanceX", 28, 2, 22, 2, 9.0))
sketch5.addConstraint(Sketcher.Constraint("DistanceX", 34, 2, 28, 2, 9.0))
sketch5.addConstraint(Sketcher.Constraint("DistanceX", 40, 2, 34, 2, 9.0))
sketch5.addConstraint(Sketcher.Constraint("DistanceX", 46, 2, 40, 2, 9.0))
sketch5.addConstraint(Sketcher.Constraint("DistanceX", 52, 2, 46, 2, 9.0))
sketch5.addConstraint(Sketcher.Constraint("DistanceX", -1, 1, 3, 2, 75.5))
pad4 = body.newObject("PartDesign::Pad", "Pad003")
pad4.Profile = sketch5
pad4.Length = 20

sketch6 = body.newObject("Sketcher::SketchObject", "Sketch005")
sketch6.AttachmentSupport = (doc.getObject("YZ_Plane"), [""])
sketch6.MapMode = "FlatFace"
sketch6.addGeometry(Part.LineSegment(Vector(-24.1, -3.2, 0), Vector(-24.1, 10, 0)), False)
sketch6.addGeometry(Part.LineSegment(Vector(-24.1, 10, 0), Vector(-32.8, 10, 0)), False)
sketch6.addGeometry(Part.LineSegment(Vector(-32.8, 10, 0), Vector(-32.8, 6.8, 0)), False)
sketch6.addGeometry(Part.LineSegment(Vector(-32.8, 6.8, 0), Vector(-29.5, 6.8, 0)), False)
sketch6.addGeometry(Part.LineSegment(Vector(-29.5, 6.8, 0), Vector(-29.5, 5.2, 0)), False)
sketch6.addGeometry(Part.LineSegment(Vector(-29.5, 5.2, 0), Vector(-39.1, 5.2, 0)), False)
sketch6.addGeometry(Part.LineSegment(Vector(-39.1, 5.2, 0), Vector(-39.1, 6.8, 0)), False)
sketch6.addGeometry(Part.LineSegment(Vector(-39.1, 6.8, 0), Vector(-35.6, 6.8, 0)), False)
sketch6.addGeometry(Part.LineSegment(Vector(-35.6, 6.8, 0), Vector(-35.6, 10, 0)), False)
sketch6.addGeometry(Part.LineSegment(Vector(-35.6, 10, 0), Vector(-44.1, 10, 0)), False)
sketch6.addGeometry(Part.LineSegment(Vector(-44.1, 10, 0), Vector(-44.1, -3.2, 0)), False)
sketch6.addGeometry(Part.LineSegment(Vector(-44.1, -3.2, 0), Vector(-24.1, -3.2, 0)), False)
sketch6.addConstraint(Sketcher.Constraint("Coincident", 0, 2, 1, 1))
sketch6.addConstraint(Sketcher.Constraint("Coincident", 1, 2, 2, 1))
sketch6.addConstraint(Sketcher.Constraint("Coincident", 2, 2, 3, 1))
sketch6.addConstraint(Sketcher.Constraint("Coincident", 3, 2, 4, 1))
sketch6.addConstraint(Sketcher.Constraint("Coincident", 4, 2, 5, 1))
sketch6.addConstraint(Sketcher.Constraint("Coincident", 5, 2, 6, 1))
sketch6.addConstraint(Sketcher.Constraint("Coincident", 6, 2, 7, 1))
sketch6.addConstraint(Sketcher.Constraint("Coincident", 7, 2, 8, 1))
sketch6.addConstraint(Sketcher.Constraint("Coincident", 8, 2, 9, 1))
sketch6.addConstraint(Sketcher.Constraint("Coincident", 9, 2, 10, 1))
sketch6.addConstraint(Sketcher.Constraint("Coincident", 10, 2, 11, 1))
sketch6.addConstraint(Sketcher.Constraint("Coincident", 11, 2, 0, 1))
sketch6.addConstraint(Sketcher.Constraint("Vertical", 0))
sketch6.addConstraint(Sketcher.Constraint("Horizontal", 1))
sketch6.addConstraint(Sketcher.Constraint("Vertical", 2))
sketch6.addConstraint(Sketcher.Constraint("Horizontal", 3))
sketch6.addConstraint(Sketcher.Constraint("Vertical", 4))
sketch6.addConstraint(Sketcher.Constraint("Horizontal", 5))
sketch6.addConstraint(Sketcher.Constraint("Vertical", 6))
sketch6.addConstraint(Sketcher.Constraint("Horizontal", 7))
sketch6.addConstraint(Sketcher.Constraint("Vertical", 8))
sketch6.addConstraint(Sketcher.Constraint("Horizontal", 9))
sketch6.addConstraint(Sketcher.Constraint("Vertical", 10))
sketch6.addConstraint(Sketcher.Constraint("Horizontal", 11))
sketch6.addConstraint(Sketcher.Constraint("Horizontal", 3, 2, 6, 2))
sketch6.addConstraint(Sketcher.Constraint("Horizontal", 1, 2, 8, 2))
sketch6.addConstraint(Sketcher.Constraint("DistanceX", 11, 1, 11, 2, 20.0))
sketch6.addConstraint(Sketcher.Constraint("DistanceX", 1, 2, 1, 1, 8.7))
sketch6.addConstraint(Sketcher.Constraint("DistanceX", 9, 2, 9, 1, 8.5))
sketch6.addConstraint(Sketcher.Constraint("DistanceY", 2, 2, 2, 1, 3.2))
sketch6.addConstraint(Sketcher.Constraint("DistanceY", -1, 1, 0, 2, 10.0))
sketch6.addConstraint(Sketcher.Constraint("DistanceX", 5, 2, 5, 1, 9.61158))
sketch6.addConstraint(Sketcher.Constraint("DistanceY", 4, 2, 4, 1, 1.599648))
sketch6.addConstraint(Sketcher.Constraint("DistanceX", 3, 1, 3, 2, 3.302382))
sketch6.addConstraint(Sketcher.Constraint("DistanceY", 0, 1, 0, 2, 13.159374))
sketch6.addConstraint(Sketcher.Constraint("DistanceX", 0, 2, -1, 1, 24.058296))
pocket2 = body.newObject("PartDesign::Pocket", "Pocket001")
pocket2.Profile = sketch6
pocket2.Length = 10

sketch7 = body.newObject("Sketcher::SketchObject", "Sketch006")
sketch7.AttachmentSupport = (doc.getObject("XY_Plane"), [""])
sketch7.MapMode = "FlatFace"
sketch7.AttachmentOffset = App.Placement(Vector(0, 0, 10), App.Rotation())
sketch7.addGeometry(Part.LineSegment(Vector(-6, -14, 0), Vector(-6, -24, 0)), False)
sketch7.addGeometry(Part.LineSegment(Vector(-6, -24, 0), Vector(80, -24, 0)), False)
sketch7.addGeometry(Part.LineSegment(Vector(80, -24, 0), Vector(80, -14, 0)), False)
sketch7.addGeometry(Part.LineSegment(Vector(80, -14, 0), Vector(-6, -14, 0)), False)
sketch7.addConstraint(Sketcher.Constraint("Coincident", 0, 2, 1, 1))
sketch7.addConstraint(Sketcher.Constraint("Coincident", 1, 2, 2, 1))
sketch7.addConstraint(Sketcher.Constraint("Coincident", 2, 2, 3, 1))
sketch7.addConstraint(Sketcher.Constraint("Coincident", 3, 2, 0, 1))
sketch7.addConstraint(Sketcher.Constraint("Vertical", 0))
sketch7.addConstraint(Sketcher.Constraint("Horizontal", 1))
sketch7.addConstraint(Sketcher.Constraint("Vertical", 2))
sketch7.addConstraint(Sketcher.Constraint("Horizontal", 3))
sketch7.addConstraint(Sketcher.Constraint("DistanceX", 1, 1, 1, 2, 86.0))
sketch7.addConstraint(Sketcher.Constraint("DistanceY", 0, 2, 0, 1, 10.0))
sketch7.addConstraint(Sketcher.Constraint("DistanceX", 0, 2, -1, 1, 6.0))
sketch7.addConstraint(Sketcher.Constraint("DistanceY", 0, 2, -1, 1, 24.058296))
pad5 = body.newObject("PartDesign::Pad", "Pad004")
pad5.Profile = sketch7
pad5.Length = 15

doc.recompute()
